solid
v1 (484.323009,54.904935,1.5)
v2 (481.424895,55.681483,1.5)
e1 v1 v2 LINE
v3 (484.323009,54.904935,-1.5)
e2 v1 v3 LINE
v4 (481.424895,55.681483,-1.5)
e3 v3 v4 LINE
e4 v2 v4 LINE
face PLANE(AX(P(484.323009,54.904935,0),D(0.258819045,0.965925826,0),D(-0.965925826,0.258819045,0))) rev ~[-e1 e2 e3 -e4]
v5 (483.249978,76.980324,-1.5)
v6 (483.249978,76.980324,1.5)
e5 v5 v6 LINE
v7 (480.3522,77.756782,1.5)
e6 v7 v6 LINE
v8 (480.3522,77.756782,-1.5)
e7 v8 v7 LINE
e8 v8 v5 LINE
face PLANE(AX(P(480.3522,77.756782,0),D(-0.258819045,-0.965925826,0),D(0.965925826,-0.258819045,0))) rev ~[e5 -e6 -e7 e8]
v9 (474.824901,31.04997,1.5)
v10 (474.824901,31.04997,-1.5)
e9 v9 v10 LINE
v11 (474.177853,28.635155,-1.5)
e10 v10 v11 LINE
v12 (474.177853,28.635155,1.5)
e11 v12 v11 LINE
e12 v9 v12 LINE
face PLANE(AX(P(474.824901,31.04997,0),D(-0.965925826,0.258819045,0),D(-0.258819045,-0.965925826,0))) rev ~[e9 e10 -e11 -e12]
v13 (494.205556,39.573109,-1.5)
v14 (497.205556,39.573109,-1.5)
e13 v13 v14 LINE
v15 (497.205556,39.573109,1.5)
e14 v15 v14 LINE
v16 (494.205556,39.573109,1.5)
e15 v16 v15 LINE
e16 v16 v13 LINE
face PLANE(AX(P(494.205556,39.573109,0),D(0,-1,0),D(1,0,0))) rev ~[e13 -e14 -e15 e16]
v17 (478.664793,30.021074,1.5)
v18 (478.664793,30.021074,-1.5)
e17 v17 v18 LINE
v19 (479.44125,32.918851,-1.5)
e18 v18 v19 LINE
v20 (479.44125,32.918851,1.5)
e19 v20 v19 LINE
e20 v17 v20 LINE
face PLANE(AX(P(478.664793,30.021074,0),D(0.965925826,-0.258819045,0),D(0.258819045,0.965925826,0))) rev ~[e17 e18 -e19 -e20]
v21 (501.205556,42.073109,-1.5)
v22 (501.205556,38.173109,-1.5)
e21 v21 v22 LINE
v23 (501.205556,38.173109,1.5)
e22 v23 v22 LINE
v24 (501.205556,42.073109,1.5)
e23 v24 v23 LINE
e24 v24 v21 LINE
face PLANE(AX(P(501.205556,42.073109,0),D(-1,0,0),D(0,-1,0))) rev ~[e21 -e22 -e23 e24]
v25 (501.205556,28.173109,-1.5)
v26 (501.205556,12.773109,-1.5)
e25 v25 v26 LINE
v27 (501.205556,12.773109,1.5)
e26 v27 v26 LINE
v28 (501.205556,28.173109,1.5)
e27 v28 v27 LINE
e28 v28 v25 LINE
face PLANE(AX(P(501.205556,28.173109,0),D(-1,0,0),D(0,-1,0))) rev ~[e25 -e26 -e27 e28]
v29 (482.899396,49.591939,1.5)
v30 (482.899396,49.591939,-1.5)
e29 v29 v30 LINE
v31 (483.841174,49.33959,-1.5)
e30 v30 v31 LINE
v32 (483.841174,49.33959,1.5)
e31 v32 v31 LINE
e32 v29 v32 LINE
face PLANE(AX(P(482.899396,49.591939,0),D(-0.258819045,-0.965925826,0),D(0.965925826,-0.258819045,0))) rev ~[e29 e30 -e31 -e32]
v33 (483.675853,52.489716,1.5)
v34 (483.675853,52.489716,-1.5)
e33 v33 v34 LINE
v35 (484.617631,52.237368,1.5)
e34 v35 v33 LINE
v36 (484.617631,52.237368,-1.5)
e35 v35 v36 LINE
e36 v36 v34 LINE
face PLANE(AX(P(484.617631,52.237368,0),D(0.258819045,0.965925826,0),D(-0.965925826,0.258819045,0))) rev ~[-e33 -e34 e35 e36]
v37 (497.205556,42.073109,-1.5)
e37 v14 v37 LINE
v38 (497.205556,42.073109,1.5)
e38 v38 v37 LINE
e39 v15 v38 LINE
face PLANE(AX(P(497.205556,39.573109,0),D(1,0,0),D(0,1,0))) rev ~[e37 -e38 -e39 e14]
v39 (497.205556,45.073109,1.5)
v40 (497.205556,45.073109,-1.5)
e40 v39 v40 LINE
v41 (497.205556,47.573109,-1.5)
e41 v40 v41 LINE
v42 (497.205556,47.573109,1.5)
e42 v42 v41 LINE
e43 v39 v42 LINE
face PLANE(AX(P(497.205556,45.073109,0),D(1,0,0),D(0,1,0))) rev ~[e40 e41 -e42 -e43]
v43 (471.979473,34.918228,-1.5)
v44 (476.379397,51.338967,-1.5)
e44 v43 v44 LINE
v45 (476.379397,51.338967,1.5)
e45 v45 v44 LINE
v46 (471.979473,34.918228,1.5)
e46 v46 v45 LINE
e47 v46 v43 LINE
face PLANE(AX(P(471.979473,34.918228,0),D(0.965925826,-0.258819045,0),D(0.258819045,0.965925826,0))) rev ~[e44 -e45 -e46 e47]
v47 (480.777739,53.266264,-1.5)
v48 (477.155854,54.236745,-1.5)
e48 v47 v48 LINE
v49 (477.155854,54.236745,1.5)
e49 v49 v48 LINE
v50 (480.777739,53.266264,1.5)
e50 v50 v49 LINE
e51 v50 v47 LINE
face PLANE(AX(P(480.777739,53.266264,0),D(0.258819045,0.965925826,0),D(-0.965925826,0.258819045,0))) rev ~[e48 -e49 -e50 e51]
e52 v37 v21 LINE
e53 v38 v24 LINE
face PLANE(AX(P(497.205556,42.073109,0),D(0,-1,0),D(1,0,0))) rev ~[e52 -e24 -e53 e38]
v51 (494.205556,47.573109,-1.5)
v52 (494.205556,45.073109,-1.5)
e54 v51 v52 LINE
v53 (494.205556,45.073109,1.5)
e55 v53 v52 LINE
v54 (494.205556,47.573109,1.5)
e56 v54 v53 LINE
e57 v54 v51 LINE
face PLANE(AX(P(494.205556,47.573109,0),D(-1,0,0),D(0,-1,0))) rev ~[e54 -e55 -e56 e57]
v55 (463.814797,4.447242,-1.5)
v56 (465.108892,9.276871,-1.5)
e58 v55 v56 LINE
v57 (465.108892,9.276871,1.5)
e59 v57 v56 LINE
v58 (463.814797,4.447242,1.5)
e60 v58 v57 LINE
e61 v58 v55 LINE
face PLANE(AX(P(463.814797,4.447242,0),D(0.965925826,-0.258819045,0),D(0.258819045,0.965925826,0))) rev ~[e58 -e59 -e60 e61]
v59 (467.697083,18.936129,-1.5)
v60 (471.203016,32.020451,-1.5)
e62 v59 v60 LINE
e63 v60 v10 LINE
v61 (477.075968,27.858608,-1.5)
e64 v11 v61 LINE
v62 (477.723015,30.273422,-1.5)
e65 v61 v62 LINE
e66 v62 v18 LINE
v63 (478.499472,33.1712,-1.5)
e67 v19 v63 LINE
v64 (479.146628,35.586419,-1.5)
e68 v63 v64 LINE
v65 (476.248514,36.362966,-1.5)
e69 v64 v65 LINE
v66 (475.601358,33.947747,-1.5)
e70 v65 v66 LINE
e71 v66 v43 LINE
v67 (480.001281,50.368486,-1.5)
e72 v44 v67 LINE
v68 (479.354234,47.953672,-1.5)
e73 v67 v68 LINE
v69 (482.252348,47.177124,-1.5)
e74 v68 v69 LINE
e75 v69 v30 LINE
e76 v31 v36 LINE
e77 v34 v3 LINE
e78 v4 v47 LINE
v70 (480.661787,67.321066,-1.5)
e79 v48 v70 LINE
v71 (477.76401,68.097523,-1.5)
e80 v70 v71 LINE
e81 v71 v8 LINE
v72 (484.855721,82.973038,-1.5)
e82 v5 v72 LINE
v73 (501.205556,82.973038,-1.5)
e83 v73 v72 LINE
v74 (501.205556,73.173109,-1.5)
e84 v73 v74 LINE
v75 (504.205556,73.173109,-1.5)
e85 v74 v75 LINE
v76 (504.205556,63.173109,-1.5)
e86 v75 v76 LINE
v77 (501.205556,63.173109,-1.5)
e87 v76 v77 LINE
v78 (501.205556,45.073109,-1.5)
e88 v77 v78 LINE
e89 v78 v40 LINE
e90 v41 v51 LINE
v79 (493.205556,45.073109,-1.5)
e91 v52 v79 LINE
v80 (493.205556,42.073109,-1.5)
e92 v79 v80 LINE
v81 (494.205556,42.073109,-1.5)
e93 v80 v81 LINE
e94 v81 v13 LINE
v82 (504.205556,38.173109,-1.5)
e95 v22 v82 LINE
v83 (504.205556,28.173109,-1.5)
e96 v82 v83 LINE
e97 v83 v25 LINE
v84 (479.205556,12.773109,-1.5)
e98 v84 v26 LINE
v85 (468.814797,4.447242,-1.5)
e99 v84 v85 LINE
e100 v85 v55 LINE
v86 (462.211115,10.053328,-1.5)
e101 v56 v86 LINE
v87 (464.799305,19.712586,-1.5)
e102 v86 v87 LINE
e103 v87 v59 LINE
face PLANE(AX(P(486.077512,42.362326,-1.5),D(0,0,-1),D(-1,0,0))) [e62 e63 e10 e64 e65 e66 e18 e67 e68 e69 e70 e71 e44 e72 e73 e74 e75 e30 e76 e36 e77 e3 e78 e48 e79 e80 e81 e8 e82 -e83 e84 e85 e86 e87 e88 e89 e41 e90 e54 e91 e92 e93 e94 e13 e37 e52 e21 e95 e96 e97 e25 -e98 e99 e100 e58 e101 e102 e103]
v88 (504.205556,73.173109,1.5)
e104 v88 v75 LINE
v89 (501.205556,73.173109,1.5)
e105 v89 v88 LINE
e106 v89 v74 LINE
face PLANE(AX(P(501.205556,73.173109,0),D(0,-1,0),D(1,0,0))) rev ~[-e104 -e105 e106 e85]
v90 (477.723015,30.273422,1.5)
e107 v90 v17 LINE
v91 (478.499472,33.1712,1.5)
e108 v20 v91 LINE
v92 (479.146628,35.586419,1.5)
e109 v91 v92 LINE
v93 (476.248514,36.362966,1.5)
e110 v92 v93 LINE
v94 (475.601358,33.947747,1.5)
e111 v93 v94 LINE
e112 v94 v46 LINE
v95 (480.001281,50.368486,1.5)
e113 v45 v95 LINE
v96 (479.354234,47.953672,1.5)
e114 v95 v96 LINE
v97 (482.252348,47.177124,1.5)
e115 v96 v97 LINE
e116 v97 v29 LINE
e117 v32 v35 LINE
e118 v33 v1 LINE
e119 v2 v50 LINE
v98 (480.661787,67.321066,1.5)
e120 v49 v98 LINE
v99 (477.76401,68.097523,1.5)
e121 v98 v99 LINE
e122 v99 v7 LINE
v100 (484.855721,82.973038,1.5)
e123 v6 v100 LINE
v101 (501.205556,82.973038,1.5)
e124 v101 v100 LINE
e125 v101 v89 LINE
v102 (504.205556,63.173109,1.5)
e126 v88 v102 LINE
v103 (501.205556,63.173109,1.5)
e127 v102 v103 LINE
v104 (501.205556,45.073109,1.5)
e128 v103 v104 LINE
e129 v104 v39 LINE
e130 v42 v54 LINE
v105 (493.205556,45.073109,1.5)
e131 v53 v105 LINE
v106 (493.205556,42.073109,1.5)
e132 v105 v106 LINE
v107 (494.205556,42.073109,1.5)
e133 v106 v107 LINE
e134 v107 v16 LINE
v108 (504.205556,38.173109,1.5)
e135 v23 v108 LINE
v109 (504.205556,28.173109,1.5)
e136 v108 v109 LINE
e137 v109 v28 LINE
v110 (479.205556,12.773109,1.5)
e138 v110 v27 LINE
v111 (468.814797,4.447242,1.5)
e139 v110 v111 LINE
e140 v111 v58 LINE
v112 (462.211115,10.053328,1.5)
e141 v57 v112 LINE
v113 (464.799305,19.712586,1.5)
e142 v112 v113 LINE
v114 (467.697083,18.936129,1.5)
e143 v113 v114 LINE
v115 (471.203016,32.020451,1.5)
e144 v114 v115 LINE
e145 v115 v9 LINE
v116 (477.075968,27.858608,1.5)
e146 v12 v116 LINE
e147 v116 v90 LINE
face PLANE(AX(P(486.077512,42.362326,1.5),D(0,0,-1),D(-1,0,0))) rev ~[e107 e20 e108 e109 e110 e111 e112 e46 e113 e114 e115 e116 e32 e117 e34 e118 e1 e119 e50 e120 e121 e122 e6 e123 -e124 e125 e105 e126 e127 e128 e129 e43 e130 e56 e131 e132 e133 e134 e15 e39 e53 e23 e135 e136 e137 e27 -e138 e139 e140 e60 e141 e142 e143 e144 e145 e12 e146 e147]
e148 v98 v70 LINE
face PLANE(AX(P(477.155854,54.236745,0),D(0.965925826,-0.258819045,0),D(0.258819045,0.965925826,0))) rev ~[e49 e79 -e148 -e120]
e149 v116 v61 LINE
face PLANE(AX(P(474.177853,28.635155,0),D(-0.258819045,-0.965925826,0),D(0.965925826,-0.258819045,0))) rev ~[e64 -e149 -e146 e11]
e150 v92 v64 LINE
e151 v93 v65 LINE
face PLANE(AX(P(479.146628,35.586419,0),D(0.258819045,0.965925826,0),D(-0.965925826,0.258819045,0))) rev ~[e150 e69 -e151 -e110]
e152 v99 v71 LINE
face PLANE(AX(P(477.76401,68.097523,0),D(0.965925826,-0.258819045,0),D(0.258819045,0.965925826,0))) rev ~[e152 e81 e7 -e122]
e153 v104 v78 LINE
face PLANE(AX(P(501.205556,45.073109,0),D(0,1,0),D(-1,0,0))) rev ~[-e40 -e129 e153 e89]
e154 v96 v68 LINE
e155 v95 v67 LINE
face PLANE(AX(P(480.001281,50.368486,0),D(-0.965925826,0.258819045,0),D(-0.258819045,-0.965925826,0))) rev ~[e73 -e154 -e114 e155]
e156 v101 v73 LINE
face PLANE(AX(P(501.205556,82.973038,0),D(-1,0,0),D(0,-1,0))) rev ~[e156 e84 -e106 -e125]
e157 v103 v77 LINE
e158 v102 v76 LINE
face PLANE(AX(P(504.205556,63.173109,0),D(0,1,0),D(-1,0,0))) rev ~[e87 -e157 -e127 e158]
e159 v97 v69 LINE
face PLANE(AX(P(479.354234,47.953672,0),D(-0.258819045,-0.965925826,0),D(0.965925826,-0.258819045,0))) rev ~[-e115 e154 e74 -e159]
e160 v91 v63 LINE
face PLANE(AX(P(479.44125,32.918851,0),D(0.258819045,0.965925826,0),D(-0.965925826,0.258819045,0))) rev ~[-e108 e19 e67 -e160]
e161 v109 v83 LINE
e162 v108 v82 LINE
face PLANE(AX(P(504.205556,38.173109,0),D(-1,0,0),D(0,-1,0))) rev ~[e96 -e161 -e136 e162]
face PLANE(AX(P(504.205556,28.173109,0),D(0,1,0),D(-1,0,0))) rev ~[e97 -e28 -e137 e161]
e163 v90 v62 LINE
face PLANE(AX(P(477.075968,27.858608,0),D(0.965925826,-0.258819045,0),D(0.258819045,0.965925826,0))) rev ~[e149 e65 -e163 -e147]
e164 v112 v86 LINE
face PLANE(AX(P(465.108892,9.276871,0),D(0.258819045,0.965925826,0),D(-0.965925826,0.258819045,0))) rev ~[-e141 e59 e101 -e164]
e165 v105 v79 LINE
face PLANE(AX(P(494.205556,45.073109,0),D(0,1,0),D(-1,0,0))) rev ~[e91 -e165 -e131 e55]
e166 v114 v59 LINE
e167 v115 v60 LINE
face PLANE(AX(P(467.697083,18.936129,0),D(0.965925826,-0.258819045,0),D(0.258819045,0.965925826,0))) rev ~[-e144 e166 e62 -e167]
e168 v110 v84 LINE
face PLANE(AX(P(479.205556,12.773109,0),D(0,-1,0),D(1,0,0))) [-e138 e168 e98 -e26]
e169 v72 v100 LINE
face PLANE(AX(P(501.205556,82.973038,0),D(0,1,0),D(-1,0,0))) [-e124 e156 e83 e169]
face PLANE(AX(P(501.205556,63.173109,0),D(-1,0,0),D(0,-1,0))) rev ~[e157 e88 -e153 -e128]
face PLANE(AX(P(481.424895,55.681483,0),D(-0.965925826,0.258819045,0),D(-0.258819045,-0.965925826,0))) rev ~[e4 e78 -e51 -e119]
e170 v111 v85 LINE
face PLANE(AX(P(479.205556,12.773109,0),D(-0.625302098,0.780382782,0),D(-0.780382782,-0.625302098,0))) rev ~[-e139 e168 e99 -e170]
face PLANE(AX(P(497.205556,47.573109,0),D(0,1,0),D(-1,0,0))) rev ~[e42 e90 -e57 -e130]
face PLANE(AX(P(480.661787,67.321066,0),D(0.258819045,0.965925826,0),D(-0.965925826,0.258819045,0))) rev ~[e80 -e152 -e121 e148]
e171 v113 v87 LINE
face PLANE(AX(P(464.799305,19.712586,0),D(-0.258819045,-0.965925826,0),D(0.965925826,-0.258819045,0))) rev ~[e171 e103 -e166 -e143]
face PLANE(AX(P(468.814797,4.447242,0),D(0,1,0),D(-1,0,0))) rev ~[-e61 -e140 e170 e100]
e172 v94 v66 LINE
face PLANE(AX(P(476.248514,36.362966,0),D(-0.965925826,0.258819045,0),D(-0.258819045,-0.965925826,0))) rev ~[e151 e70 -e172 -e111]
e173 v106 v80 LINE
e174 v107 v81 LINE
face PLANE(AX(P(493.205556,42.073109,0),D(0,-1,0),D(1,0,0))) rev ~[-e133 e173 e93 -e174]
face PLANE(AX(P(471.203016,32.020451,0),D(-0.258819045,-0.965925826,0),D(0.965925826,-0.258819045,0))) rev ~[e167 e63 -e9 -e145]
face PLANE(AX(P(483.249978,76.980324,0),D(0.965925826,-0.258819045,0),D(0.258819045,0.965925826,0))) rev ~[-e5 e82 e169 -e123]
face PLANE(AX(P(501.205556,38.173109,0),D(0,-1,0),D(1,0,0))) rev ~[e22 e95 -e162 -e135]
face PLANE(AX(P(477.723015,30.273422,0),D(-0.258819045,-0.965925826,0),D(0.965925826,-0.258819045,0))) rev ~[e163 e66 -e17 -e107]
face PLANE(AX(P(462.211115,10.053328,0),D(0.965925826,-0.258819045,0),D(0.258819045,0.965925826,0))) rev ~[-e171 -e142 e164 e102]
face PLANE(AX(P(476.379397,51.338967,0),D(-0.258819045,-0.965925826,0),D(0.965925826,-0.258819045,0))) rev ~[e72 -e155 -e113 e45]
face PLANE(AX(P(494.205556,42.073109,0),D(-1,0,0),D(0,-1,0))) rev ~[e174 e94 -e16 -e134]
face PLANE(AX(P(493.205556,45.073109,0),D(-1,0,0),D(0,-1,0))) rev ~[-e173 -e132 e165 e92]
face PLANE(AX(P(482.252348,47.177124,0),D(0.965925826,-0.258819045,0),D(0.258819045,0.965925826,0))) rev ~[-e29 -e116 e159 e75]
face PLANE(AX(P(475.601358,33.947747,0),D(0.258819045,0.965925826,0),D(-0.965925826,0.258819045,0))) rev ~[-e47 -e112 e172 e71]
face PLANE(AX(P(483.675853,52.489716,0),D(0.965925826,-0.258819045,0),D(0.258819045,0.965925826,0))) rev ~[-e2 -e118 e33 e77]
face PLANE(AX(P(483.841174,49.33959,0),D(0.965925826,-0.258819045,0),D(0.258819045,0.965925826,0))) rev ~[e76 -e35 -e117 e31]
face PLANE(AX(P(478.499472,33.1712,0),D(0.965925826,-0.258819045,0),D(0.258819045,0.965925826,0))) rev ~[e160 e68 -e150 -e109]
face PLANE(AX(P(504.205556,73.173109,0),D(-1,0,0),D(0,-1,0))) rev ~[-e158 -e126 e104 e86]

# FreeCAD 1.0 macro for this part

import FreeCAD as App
import Part
import Sketcher
from FreeCAD import Vector
Q = App.Units.Quantity


def add_polygon(sketch, points):
    """Adds a closed chain of lines whose ends are joined by coincident constraints."""
    first, n = sketch.GeometryCount, len(points)
    for a, b in zip(points, points[1:] + points[:1]):
        sketch.addGeometry(Part.LineSegment(App.Vector(*a, 0), App.Vector(*b, 0)), False)
    for i in range(n):
        sketch.addConstraint(Sketcher.Constraint("Coincident", first + i, 2, first + (i + 1) % n, 1))

doc = App.newDocument("Part")
params = doc.addObject("Spreadsheet::Sheet", "Params")
for row, (alias, value) in enumerate([
    ("sketch1_width", "5 mm"),
    ("sketch1_width2", "22 mm"),
    ("sketch1_width3", "3 mm"),
    ("sketch1_width4", "4 mm"),
    ("sketch1_width5", "1 mm"),
    ("pad1_length", "3 mm"),
], start=1):
    params.set(f"A{row}", alias)
    params.set(f"B{row}", "=" + value)
    params.setAlias(f"B{row}", alias)

body = doc.addObject("PartDesign::Body", "Body")

sketch1 = body.newObject("Sketcher::SketchObject", "Sketch")
sketch1.AttachmentSupport = (doc.getObject("XY_Plane"), [""])
sketch1.MapMode = "FlatFace"
add_polygon(sketch1, [(501.2, 83), (484.9, 83), (483.2, 77), (480.4, 77.8), (477.8, 68.1), (480.7, 67.3), (477.2, 54.2), (480.8, 53.3), (481.4, 55.7), (484.3, 54.9), (483.7, 52.5), (484.6, 52.2), (483.8, 49.3), (482.9, 49.6), (482.3, 47.2), (479.4, 48), (480, 50.4), (476.4, 51.3), (472, 34.9), (475.6, 33.9), (476.2, 36.4), (479.1, 35.6), (478.5, 33.2), (479.4, 32.9), (478.7, 30), (477.7, 30.3), (477.1, 27.9), (474.2, 28.6), (474.8, 31), (471.2, 32), (467.7, 18.9), (464.8, 19.7), (462.2, 10.1), (465.1, 9.3), (463.8, 4.4), (468.8, 4.4), (479.2, 12.8), (501.2, 12.8), (501.2, 28.2), (504.2, 28.2), (504.2, 38.2), (501.2, 38.2), (501.2, 42.1), (497.2, 42.1), (497.2, 39.6), (494.2, 39.6), (494.2, 42.1), (493.2, 42.1), (493.2, 45.1), (494.2, 45.1), (494.2, 47.6), (497.2, 47.6), (497.2, 45.1), (501.2, 45.1), (501.2, 63.2), (504.2, 63.2), (504.2, 73.2), (501.2, 73.2)])
sketch1.addConstraint(Sketcher.Constraint("Horizontal", 0))
sketch1.addConstraint(Sketcher.Constraint("Horizontal", 34))
sketch1.addConstraint(Sketcher.Constraint("Horizontal", 36))
sketch1.addConstraint(Sketcher.Constraint("Vertical", 37))
sketch1.addConstraint(Sketcher.Constraint("Horizontal", 38))
sketch1.addConstraint(Sketcher.Constraint("Vertical", 39))
sketch1.addConstraint(Sketcher.Constraint("Horizontal", 40))
sketch1.addConstraint(Sketcher.Constraint("Vertical", 41))
sketch1.addConstraint(Sketcher.Constraint("Horizontal", 42))
sketch1.addConstraint(Sketcher.Constraint("Vertical", 43))
sketch1.addConstraint(Sketcher.Constraint("Horizontal", 44))
sketch1.addConstraint(Sketcher.Constraint("Vertical", 45))
sketch1.addConstraint(Sketcher.Constraint("Horizontal", 46))
sketch1.addConstraint(Sketcher.Constraint("Vertical", 47))
sketch1.addConstraint(Sketcher.Constraint("Horizontal", 48))
sketch1.addConstraint(Sketcher.Constraint("Vertical", 49))
sketch1.addConstraint(Sketcher.Constraint("Horizontal", 50))
sketch1.addConstraint(Sketcher.Constraint("Vertical", 51))
sketch1.addConstraint(Sketcher.Constraint("Horizontal", 52))
sketch1.addConstraint(Sketcher.Constraint("Vertical", 53))
sketch1.addConstraint(Sketcher.Constraint("Horizontal", 54))
sketch1.addConstraint(Sketcher.Constraint("Vertical", 55))
sketch1.addConstraint(Sketcher.Constraint("Horizontal", 56))
sketch1.addConstraint(Sketcher.Constraint("Vertical", 57))
sketch1.addConstraint(Sketcher.Constraint("Perpendicular", 1, 2))
sketch1.addConstraint(Sketcher.Constraint("Perpendicular", 2, 3))
sketch1.addConstraint(Sketcher.Constraint("Perpendicular", 3, 4))
sketch1.addConstraint(Sketcher.Constraint("Perpendicular", 4, 5))
sketch1.addConstraint(Sketcher.Constraint("Perpendicular", 5, 6))
sketch1.addConstraint(Sketcher.Constraint("Perpendicular", 6, 7))
sketch1.addConstraint(Sketcher.Constraint("Perpendicular", 7, 8))
sketch1.addConstraint(Sketcher.Constraint("Perpendicular", 8, 9))
sketch1.addConstraint(Sketcher.Constraint("Perpendicular", 9, 10))
sketch1.addConstraint(Sketcher.Constraint("Perpendicular", 10, 11))
sketch1.addConstraint(Sketcher.Constraint("Perpendicular", 11, 12))
sketch1.addConstraint(Sketcher.Constraint("Perpendicular", 12, 13))
sketch1.addConstraint(Sketcher.Constraint("Perpendicular", 13, 14))
sketch1.addConstraint(Sketcher.Constraint("Perpendicular", 14, 15))
sketch1.addConstraint(Sketcher.Constraint("Perpendicular", 15, 16))
sketch1.addConstraint(Sketcher.Constraint("Perpendicular", 16, 17))
sketch1.addConstraint(Sketcher.Constraint("Perpendicular", 17, 18))
sketch1.addConstraint(Sketcher.Constraint("Perpendicular", 18, 19))
sketch1.addConstraint(Sketcher.Constraint("Perpendicular", 19, 20))
sketch1.addConstraint(Sketcher.Constraint("Perpendicular", 20, 21))
sketch1.addConstraint(Sketcher.Constraint("Perpendicular", 21, 22))
sketch1.addConstraint(Sketcher.Constraint("Perpendicular", 22, 23))
sketch1.addConstraint(Sketcher.Constraint("Perpendicular", 23, 24))
sketch1.addConstraint(Sketcher.Constraint("Perpendicular", 24, 25))
sketch1.addConstraint(Sketcher.Constraint("Perpendicular", 25, 26))
sketch1.addConstraint(Sketcher.Constraint("Perpendicular", 26, 27))
sketch1.addConstraint(Sketcher.Constraint("Perpendicular", 27, 28))
sketch1.addConstraint(Sketcher.Constraint("Perpendicular", 28, 29))
sketch1.addConstraint(Sketcher.Constraint("Perpendicular", 29, 30))
sketch1.addConstraint(Sketcher.Constraint("Perpendicular", 30, 31))
sketch1.addConstraint(Sketcher.Constraint("Perpendicular", 31, 32))
sketch1.addConstraint(Sketcher.Constraint("Perpendicular", 32, 33))
sketch1.addConstraint(Sketcher.Constraint("Horizontal", 42, 2, 45, 2))
sketch1.addConstraint(Sketcher.Constraint("Horizontal", 48, 2, 51, 2))
sketch1.addConstraint(Sketcher.Constraint("Vertical", 37, 2, 40, 2))
sketch1.addConstraint(Sketcher.Constraint("Vertical", 45, 2, 48, 2))
sketch1.addConstraint(Sketcher.Constraint("Vertical", 43, 2, 50, 2))
sketch1.addConstraint(Sketcher.Constraint("Vertical", 41, 2, 52, 2))
sketch1.addConstraint(Sketcher.Constraint("Vertical", 39, 2, 54, 2))
sketch1.addConstraint(Sketcher.Constraint("Vertical", 53, 2, 56, 2))
sketch1.addConstraint(Sketcher.Constraint("Equal", 40, 44))
sketch1.addConstraint(Sketcher.Constraint("Equal", 56, 47))
sketch1.addConstraint(Sketcher.Constraint("Equal", 45, 49))
sketch1.addConstraint(Sketcher.Constraint("Equal", 39, 55))
sketch1.addConstraint(Sketcher.Constraint("Equal", 2, 4))
sketch1.addConstraint(Sketcher.Constraint("Equal", 7, 9))
sketch1.addConstraint(Sketcher.Constraint("Equal", 4, 11))
sketch1.addConstraint(Sketcher.Constraint("Equal", 10, 12))
sketch1.addConstraint(Sketcher.Constraint("Equal", 8, 14))
sketch1.addConstraint(Sketcher.Constraint("Equal", 13, 15))
sketch1.addConstraint(Sketcher.Constraint("Equal", 6, 16))
sketch1.addConstraint(Sketcher.Constraint("Equal", 16, 18))
sketch1.addConstraint(Sketcher.Constraint("Equal", 9, 19))
sketch1.addConstraint(Sketcher.Constraint("Equal", 14, 20))
sketch1.addConstraint(Sketcher.Constraint("Equal", 19, 21))
sketch1.addConstraint(Sketcher.Constraint("Equal", 12, 22))
sketch1.addConstraint(Sketcher.Constraint("Equal", 11, 23))
sketch1.addConstraint(Sketcher.Constraint("Equal", 22, 24))
sketch1.addConstraint(Sketcher.Constraint("Equal", 15, 25))
sketch1.addConstraint(Sketcher.Constraint("Equal", 20, 26))
sketch1.addConstraint(Sketcher.Constraint("Equal", 25, 27))
sketch1.addConstraint(Sketcher.Constraint("Equal", 18, 28))
sketch1.addConstraint(Sketcher.Constraint("Equal", 5, 29))
sketch1.addConstraint(Sketcher.Constraint("Equal", 23, 30))
sketch1.addConstraint(Sketcher.Constraint("Equal", 3, 31))
sketch1.addConstraint(Sketcher.Constraint("Equal", 30, 32))
sketch1.addConstraint(Sketcher.Constraint("DistanceX", 34, 1, 34, 2, Q("5 mm")))
sketch1.addConstraint(Sketcher.Constraint("DistanceX", 36, 1, 36, 2, Q("22 mm")))
sketch1.addConstraint(Sketcher.Constraint("DistanceX", 38, 1, 38, 2, Q("3 mm")))
sketch1.addConstraint(Sketcher.Constraint("DistanceX", 42, 2, 42, 1, Q("4 mm")))
sketch1.addConstraint(Sketcher.Constraint("DistanceX", 46, 2, 46, 1, Q("1 mm")))
sketch1.addConstraint(Sketcher.Constraint("DistanceY", 39, 1, 39, 2, Q("10 mm")))
sketch1.addConstraint(Sketcher.Constraint("Angle", 1, Q("-105 deg")))
sketch1.addConstraint(Sketcher.Constraint("Distance", 2, Q("3 mm")))
sketch1.addConstraint(Sketcher.Constraint("Distance", 3, Q("10 mm")))
sketch1.addConstraint(Sketcher.Constraint("Distance", 17, Q("17 mm")))
sketch1.addConstraint(Sketcher.Constraint("Distance", 33, Q("5 mm")))
sketch1.addConstraint(Sketcher.Constraint("DistanceY", 37, 1, 37, 2, Q("15.4 mm")))
sketch1.addConstraint(Sketcher.Constraint("DistanceY", 41, 1, 41, 2, Q("3.9 mm")))
sketch1.addConstraint(Sketcher.Constraint("DistanceY", 43, 2, 43, 1, Q("2.5 mm")))
sketch1.addConstraint(Sketcher.Constraint("DistanceY", 53, 1, 53, 2, Q("18.1 mm")))
sketch1.addConstraint(Sketcher.Constraint("Distance", 13, Q("2.5 mm")))
sketch1.addConstraint(Sketcher.Constraint("DistanceX", 5, 2, 9, 2, Q("6.519999 mm")))
sketch1.addConstraint(Sketcher.Constraint("Distance", 10, Q("0.975 mm")))
sketch1.addConstraint(Sketcher.Constraint("DistanceX", 3, 2, 8, 2, Q("6.558999 mm")))
sketch1.addConstraint(Sketcher.Constraint("DistanceY", 57, 1, 57, 2, Q("9.799929 mm")))
sketch1.addConstraint(Sketcher.Constraint("DistanceX", -1, 1, 2, 2, Q("480.3522 mm")))
sketch1.addConstraint(Sketcher.Constraint("DistanceY", -1, 1, 21, 2, Q("33.1712 mm")))
sketch1.addConstraint(Sketcher.Constraint("DistanceX", -1, 1, 27, 2, Q("474.824901 mm")))
sketch1.addConstraint(Sketcher.Constraint("DistanceX", 31, 2, 28, 2, Q("8.991901 mm")))
sketch1.addConstraint(Sketcher.Constraint("DistanceY", 35, 2, 25, 2, Q("15.085499 mm")))
sketch1.addConstraint(Sketcher.Constraint("Distance", 35, Q("13.314951 mm")))
sketch1.setExpression("Constraints[148]", "Params.sketch1_width")
sketch1.setExpression("Constraints[149]", "Params.sketch1_width2")
sketch1.setExpression("Constraints[150]", "Params.sketch1_width3")
sketch1.setExpression("Constraints[151]", "Params.sketch1_width4")
sketch1.setExpression("Constraints[152]", "Params.sketch1_width5")
pad1 = body.newObject("PartDesign::Pad", "Pad")
pad1.Profile = sketch1
pad1.setExpression("Length", "Params.pad1_length")
pad1.Midplane = True

doc.recompute()
